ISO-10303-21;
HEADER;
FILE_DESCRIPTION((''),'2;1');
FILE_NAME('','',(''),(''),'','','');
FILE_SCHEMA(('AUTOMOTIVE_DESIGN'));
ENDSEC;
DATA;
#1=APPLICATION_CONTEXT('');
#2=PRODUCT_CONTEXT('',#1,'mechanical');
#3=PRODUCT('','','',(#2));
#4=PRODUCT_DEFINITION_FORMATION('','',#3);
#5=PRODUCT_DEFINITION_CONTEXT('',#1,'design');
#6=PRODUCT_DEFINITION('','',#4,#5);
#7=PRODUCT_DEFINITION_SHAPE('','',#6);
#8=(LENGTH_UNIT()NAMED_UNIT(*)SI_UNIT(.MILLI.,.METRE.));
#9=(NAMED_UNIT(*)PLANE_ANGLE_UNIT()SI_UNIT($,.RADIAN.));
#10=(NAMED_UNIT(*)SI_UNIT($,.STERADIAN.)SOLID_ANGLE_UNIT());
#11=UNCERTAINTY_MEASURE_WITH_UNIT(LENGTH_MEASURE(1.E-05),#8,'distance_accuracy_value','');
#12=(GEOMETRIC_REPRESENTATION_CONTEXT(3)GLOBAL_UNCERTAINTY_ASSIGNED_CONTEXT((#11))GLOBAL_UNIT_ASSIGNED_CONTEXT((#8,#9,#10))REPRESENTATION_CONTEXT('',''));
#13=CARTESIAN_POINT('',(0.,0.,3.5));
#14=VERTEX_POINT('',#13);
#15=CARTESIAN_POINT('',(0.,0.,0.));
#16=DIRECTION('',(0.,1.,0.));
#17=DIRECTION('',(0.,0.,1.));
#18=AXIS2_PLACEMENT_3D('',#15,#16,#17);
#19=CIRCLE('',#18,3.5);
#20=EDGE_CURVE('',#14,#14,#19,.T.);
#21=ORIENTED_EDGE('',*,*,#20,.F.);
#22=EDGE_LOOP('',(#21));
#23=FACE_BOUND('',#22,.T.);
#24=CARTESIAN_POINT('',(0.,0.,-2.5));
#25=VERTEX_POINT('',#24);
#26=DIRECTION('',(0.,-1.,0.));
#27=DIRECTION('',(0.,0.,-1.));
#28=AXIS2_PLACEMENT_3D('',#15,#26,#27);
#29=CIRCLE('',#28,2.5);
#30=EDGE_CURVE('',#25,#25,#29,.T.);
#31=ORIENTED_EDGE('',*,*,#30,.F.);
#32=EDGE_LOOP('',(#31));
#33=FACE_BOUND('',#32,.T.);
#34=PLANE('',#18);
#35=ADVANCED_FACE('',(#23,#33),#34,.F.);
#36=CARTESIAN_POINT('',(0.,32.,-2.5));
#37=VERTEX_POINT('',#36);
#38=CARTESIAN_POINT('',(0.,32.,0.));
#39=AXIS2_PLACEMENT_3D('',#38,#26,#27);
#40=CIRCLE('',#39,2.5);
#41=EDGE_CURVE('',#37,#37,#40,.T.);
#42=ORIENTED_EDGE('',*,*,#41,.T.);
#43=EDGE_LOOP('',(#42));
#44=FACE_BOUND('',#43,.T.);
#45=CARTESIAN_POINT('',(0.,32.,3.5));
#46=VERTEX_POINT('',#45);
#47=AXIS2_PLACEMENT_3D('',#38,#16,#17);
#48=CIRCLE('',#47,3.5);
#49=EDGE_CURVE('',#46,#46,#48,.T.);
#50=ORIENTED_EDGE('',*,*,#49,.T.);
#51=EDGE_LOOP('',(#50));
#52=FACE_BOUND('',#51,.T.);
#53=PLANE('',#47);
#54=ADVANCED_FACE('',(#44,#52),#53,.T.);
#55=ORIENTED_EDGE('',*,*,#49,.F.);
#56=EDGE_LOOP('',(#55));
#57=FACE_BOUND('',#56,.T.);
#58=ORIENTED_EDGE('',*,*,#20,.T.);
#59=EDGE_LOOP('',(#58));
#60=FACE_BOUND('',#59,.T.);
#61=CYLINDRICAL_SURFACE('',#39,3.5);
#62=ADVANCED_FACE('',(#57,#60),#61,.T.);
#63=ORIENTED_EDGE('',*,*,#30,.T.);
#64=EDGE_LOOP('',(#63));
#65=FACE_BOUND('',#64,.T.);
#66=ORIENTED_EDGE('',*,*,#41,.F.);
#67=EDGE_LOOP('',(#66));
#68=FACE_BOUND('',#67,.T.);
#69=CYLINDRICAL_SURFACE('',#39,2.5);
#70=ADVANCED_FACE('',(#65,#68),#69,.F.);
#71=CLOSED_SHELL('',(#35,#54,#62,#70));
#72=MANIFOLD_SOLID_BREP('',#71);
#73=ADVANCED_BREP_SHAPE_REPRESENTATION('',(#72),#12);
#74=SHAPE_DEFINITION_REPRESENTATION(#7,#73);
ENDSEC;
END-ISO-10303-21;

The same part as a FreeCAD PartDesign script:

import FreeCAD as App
import Part
import Sketcher
from FreeCAD import Vector

doc = App.newDocument("Part")
body = doc.addObject("PartDesign::Body", "Body")

# Sketch on XZ plane
sketch1 = body.newObject("Sketcher::SketchObject", "Sketch")
sketch1.AttachmentSupport = (doc.getObject("XZ_Plane"), [""])
sketch1.MapMode = "FlatFace"
sketch1.addGeometry(Part.Circle(Vector(0, 0, 0), Vector(0, 0, 1), 3.5), False)
sketch1.addConstraint([
    Sketcher.Constraint("Coincident", 0, 3, -1, 1),
    Sketcher.Constraint("Diameter", 0, 7.0),
])
pad1 = body.newObject("PartDesign::Pad", "Pad")
pad1.Profile = sketch1
pad1.Length = 32
pad1.Reversed = True

# Sketch on XZ plane
sketch2 = body.newObject("Sketcher::SketchObject", "Sketch001")
sketch2.AttachmentSupport = (doc.getObject("XZ_Plane"), [""])
sketch2.MapMode = "FlatFace"
sketch2.addGeometry(Part.Circle(Vector(0, 0, 0), Vector(0, 0, 1), 2.5), False)
sketch2.addConstraint([
    Sketcher.Constraint("Coincident", 0, 3, -1, 1),
    Sketcher.Constraint("Diameter", 0, 5.0),
])
pocket1 = body.newObject("PartDesign::Pocket", "Pocket")
pocket1.Profile = sketch2
pocket1.Length = 32

doc.recompute()
